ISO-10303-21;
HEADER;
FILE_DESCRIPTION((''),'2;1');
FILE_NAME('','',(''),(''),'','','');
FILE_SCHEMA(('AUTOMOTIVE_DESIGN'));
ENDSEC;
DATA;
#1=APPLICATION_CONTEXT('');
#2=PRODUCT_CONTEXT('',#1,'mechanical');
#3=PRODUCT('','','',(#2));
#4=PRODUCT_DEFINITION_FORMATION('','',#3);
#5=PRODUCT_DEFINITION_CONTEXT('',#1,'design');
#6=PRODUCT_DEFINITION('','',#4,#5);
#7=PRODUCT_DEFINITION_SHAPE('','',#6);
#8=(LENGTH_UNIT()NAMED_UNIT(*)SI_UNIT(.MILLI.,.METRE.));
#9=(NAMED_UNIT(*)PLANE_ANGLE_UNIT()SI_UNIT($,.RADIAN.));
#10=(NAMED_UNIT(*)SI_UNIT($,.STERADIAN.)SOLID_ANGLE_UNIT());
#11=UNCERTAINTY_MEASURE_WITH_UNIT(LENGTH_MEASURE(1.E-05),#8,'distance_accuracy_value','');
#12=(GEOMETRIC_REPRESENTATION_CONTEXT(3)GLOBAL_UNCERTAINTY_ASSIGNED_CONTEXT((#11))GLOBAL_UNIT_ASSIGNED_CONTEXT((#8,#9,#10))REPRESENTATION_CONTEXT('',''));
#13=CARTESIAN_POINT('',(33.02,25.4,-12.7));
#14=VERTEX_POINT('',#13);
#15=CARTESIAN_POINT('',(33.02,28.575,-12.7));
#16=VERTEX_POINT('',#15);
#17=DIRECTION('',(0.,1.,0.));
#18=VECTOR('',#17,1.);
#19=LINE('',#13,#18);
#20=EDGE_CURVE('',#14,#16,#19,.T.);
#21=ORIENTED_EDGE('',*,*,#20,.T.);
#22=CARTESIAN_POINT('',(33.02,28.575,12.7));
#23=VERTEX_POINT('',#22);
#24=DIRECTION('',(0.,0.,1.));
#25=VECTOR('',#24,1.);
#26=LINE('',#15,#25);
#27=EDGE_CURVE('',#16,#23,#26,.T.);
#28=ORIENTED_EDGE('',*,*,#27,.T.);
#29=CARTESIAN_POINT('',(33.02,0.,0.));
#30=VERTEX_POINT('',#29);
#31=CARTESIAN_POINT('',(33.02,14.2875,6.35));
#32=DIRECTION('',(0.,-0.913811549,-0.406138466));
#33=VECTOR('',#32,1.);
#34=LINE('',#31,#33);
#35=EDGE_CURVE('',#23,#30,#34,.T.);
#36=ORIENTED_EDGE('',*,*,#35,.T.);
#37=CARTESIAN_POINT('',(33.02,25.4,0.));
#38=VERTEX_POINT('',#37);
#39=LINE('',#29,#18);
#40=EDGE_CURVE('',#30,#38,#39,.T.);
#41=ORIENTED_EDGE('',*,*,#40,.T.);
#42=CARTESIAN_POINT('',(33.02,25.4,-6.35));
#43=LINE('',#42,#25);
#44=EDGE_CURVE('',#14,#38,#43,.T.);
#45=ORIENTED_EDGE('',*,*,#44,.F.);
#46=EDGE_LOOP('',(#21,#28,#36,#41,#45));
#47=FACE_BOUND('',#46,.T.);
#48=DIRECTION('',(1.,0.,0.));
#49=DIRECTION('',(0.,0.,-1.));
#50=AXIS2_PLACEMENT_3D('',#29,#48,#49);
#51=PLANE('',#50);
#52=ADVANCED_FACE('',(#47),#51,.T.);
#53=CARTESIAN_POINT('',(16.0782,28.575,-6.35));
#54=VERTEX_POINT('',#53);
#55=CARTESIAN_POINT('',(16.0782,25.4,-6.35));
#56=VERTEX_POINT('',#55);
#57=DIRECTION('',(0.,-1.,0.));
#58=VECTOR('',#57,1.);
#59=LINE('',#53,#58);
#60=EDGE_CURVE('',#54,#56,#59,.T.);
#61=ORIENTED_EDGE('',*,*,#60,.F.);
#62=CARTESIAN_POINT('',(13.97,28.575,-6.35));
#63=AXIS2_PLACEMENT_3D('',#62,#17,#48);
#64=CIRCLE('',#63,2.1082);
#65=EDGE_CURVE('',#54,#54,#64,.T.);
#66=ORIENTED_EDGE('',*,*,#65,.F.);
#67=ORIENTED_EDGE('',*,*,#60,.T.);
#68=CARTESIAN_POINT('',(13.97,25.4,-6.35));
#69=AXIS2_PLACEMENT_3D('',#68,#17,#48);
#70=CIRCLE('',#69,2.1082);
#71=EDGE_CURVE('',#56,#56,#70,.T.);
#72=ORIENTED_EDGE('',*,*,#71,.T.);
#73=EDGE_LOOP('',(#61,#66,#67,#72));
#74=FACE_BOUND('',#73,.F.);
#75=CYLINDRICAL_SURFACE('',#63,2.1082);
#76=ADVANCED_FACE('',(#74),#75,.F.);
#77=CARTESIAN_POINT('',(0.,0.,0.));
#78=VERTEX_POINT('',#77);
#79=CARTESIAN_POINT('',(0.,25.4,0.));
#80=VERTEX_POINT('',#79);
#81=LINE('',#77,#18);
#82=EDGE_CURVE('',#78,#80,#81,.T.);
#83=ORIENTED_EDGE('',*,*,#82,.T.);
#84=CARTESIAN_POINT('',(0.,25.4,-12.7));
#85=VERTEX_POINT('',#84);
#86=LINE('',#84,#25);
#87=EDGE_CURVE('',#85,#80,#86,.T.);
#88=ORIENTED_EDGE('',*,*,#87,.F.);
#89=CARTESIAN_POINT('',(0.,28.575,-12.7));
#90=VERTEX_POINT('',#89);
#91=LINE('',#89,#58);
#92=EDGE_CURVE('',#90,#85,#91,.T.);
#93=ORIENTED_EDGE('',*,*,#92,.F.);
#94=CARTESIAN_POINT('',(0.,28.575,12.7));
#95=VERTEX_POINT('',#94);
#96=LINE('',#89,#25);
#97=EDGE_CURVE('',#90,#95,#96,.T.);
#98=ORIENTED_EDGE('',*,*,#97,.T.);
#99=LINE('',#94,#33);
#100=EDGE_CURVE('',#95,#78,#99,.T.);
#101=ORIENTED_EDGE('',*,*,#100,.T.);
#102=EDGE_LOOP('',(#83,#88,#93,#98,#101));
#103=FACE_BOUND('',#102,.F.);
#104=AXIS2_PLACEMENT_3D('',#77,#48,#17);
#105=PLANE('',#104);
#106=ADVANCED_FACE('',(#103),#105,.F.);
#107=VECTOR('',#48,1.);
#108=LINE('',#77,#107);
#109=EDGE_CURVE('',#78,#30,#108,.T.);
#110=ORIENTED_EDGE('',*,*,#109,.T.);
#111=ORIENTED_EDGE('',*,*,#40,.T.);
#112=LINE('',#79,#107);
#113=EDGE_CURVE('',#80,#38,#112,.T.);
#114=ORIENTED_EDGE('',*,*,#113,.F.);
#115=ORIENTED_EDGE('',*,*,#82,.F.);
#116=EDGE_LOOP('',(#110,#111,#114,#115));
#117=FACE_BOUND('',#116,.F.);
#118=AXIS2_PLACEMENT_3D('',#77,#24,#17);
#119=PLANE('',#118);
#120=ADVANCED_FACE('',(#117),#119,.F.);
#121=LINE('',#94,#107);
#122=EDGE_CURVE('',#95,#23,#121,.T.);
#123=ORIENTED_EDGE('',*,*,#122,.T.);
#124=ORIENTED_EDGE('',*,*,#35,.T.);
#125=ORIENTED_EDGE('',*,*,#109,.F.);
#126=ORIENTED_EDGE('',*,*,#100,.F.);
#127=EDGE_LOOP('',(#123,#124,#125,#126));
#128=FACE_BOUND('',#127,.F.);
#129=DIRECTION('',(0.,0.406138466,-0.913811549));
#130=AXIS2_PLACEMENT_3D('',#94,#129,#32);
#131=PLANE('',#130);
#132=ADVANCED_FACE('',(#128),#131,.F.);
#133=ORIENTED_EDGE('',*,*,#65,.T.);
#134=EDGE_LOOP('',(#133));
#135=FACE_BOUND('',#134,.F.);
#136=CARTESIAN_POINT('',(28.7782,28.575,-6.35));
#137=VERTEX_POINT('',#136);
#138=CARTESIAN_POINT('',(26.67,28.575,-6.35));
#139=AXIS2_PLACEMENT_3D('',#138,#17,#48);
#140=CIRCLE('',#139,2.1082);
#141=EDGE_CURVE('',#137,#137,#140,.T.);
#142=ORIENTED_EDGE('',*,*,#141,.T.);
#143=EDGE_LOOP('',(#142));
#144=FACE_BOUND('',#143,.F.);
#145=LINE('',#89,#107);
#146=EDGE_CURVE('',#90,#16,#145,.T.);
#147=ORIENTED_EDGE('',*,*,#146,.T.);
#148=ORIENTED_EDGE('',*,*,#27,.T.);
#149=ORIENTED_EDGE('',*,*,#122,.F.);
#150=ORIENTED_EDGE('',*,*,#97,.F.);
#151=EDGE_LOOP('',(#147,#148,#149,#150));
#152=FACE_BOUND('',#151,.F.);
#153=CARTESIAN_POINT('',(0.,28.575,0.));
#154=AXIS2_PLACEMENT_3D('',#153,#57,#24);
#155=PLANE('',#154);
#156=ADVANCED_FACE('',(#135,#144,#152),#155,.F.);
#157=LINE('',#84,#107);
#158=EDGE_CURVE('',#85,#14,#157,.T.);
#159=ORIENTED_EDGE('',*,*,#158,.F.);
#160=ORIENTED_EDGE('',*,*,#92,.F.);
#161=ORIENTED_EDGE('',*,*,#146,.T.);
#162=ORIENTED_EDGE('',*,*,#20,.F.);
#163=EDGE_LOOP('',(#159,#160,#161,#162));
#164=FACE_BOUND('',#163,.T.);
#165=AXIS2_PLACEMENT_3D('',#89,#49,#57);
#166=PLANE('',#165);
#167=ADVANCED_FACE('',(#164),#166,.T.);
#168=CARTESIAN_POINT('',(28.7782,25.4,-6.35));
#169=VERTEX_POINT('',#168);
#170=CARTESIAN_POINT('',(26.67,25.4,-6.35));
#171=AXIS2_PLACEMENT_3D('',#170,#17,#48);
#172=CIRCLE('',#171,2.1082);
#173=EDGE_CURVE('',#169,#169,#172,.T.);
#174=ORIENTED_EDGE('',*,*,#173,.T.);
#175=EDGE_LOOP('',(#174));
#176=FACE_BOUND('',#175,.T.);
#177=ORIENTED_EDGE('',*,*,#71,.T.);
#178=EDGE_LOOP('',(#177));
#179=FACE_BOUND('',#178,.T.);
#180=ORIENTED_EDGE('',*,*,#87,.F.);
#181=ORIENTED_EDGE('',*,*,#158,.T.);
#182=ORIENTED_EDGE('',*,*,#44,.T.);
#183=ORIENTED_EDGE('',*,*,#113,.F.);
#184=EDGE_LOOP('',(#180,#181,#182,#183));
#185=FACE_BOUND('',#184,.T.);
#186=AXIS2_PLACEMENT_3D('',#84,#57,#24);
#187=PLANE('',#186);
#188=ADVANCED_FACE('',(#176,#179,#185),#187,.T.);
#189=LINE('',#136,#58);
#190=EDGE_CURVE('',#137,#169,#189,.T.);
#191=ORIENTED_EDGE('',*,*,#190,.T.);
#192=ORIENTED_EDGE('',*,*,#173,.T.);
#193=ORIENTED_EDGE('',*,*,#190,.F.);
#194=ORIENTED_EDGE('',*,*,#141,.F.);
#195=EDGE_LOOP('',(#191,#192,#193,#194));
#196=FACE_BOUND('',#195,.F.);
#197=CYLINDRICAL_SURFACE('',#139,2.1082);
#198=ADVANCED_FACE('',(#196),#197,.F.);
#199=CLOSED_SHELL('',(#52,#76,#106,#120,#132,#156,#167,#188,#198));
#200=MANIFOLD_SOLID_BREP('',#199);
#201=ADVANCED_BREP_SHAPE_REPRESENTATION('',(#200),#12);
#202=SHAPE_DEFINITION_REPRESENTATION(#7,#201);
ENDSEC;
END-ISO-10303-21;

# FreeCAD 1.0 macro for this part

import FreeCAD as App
import Part
import Sketcher

V = App.Vector
Q = App.Units.Quantity

doc = App.newDocument("Part")
body = doc.addObject("PartDesign::Body", "Body")

sketch1 = doc.addObject("Sketcher::SketchObject", "Sketch")
body.addObject(sketch1)
sketch1.AttachmentSupport = (doc.YZ_Plane, [""])
sketch1.MapMode = "FlatFace"
sketch1.addGeometry(Part.LineSegment(V(28.575, 12.7, 0), V(0, 0, 0)), False)
sketch1.addGeometry(Part.LineSegment(V(0, 0, 0), V(25.4, 0, 0)), False)
sketch1.addGeometry(Part.LineSegment(V(25.4, 0, 0), V(25.4, -12.7, 0)), False)
sketch1.addGeometry(Part.LineSegment(V(25.4, -12.7, 0), V(28.575, -12.7, 0)), False)
sketch1.addGeometry(Part.LineSegment(V(28.575, -12.7, 0), V(28.575, 12.7, 0)), False)
sketch1.addConstraint(Sketcher.Constraint("Coincident", 0, 2, 1, 1))
sketch1.addConstraint(Sketcher.Constraint("Coincident", 1, 2, 2, 1))
sketch1.addConstraint(Sketcher.Constraint("Coincident", 2, 2, 3, 1))
sketch1.addConstraint(Sketcher.Constraint("Coincident", 3, 2, 4, 1))
sketch1.addConstraint(Sketcher.Constraint("Coincident", 4, 2, 0, 1))
sketch1.addConstraint(Sketcher.Constraint("Horizontal", 1))
sketch1.addConstraint(Sketcher.Constraint("Vertical", 2))
sketch1.addConstraint(Sketcher.Constraint("Horizontal", 3))
sketch1.addConstraint(Sketcher.Constraint("Vertical", 4))
sketch1.addConstraint(Sketcher.Constraint("Coincident", 0, 2, -1, 1))
sketch1.addConstraint(Sketcher.Constraint("Equal", 1, 4))
sketch1.addConstraint(Sketcher.Constraint("DistanceX", 1, 1, 1, 2, Q("1 in")))
sketch1.addConstraint(Sketcher.Constraint("DistanceY", 2, 2, 2, 1, Q("0.5 in")))
sketch1.addConstraint(Sketcher.Constraint("DistanceX", 3, 1, 3, 2, Q("0.125 in")))
pad1 = doc.addObject("PartDesign::Pad", "Pad")
body.addObject(pad1)
pad1.Profile = sketch1
pad1.Length = Q("2.1 in")

sketch2 = doc.addObject("Sketcher::SketchObject", "Sketch001")
body.addObject(sketch2)
sketch2.AttachmentSupport = (doc.XZ_Plane, [""])
sketch2.MapMode = "FlatFace"
sketch2.AttachmentOffset = App.Placement(V(0, 0, -1.125 * 25.4), App.Rotation())
sketch2.addGeometry(Part.Circle(V(26.67, -6.35, 0), V(0, 0, 1), 2.1082), False)
sketch2.addConstraint(Sketcher.Constraint("Diameter", 0, Q("0.166 in")))
sketch2.addConstraint(Sketcher.Constraint("DistanceX", -1, 1, 0, 3, Q("1.05 in")))
sketch2.addConstraint(Sketcher.Constraint("DistanceY", 0, 3, -1, 1, Q("0.25 in")))
pocket1 = doc.addObject("PartDesign::Pocket", "Pocket")
body.addObject(pocket1)
pocket1.Profile = sketch2
pocket1.Length = Q("1.725 in")
pocket1.Reversed = True

sketch3 = doc.addObject("Sketcher::SketchObject", "Sketch002")
body.addObject(sketch3)
sketch3.AttachmentSupport = (doc.YZ_Plane, [""])
sketch3.MapMode = "FlatFace"
sketch3.AttachmentOffset = App.Placement(V(0, 0, 2.1 * 25.4), App.Rotation())
sketch3.addGeometry(Part.LineSegment(V(0, -12.7, 0), V(28.575, -12.7, 0)), False)
sketch3.addGeometry(Part.LineSegment(V(28.575, -12.7, 0), V(28.575, 16.4619, 0)), False)
sketch3.addGeometry(Part.LineSegment(V(28.575, 16.4619, 0), V(0, 16.4619, 0)), False)
sketch3.addGeometry(Part.LineSegment(V(0, 16.4619, 0), V(0, -12.7, 0)), False)
sketch3.addConstraint(Sketcher.Constraint("Coincident", 0, 2, 1, 1))
sketch3.addConstraint(Sketcher.Constraint("Coincident", 1, 2, 2, 1))
sketch3.addConstraint(Sketcher.Constraint("Coincident", 2, 2, 3, 1))
sketch3.addConstraint(Sketcher.Constraint("Coincident", 3, 2, 0, 1))
sketch3.addConstraint(Sketcher.Constraint("Horizontal", 0))
sketch3.addConstraint(Sketcher.Constraint("Vertical", 1))
sketch3.addConstraint(Sketcher.Constraint("Horizontal", 2))
sketch3.addConstraint(Sketcher.Constraint("Vertical", 3))
sketch3.addConstraint(Sketcher.Constraint("PointOnObject", 2, 2, -2))
sketch3.addConstraint(Sketcher.Constraint("DistanceY", 0, 2, -1, 1, Q("0.5 in")))
sketch3.addConstraint(Sketcher.Constraint("DistanceX", 0, 1, 0, 2, Q("1.125 in")))
sketch3.addConstraint(Sketcher.Constraint("DistanceY", 1, 1, 1, 2, Q("1.1481 in")))
pocket2 = doc.addObject("PartDesign::Pocket", "Pocket001")
body.addObject(pocket2)
pocket2.Profile = sketch3
pocket2.Length = Q("0.8 in")

sketch4 = doc.addObject("Sketcher::SketchObject", "Sketch003")
body.addObject(sketch4)
sketch4.AttachmentSupport = (doc.XZ_Plane, [""])
sketch4.MapMode = "FlatFace"
sketch4.AttachmentOffset = App.Placement(V(0, 0, -1.125 * 25.4), App.Rotation())
sketch4.addGeometry(Part.Circle(V(13.97, -6.35, 0), V(0, 0, 1), 2.1082), False)
sketch4.addConstraint(Sketcher.Constraint("Diameter", 0, Q("0.166 in")))
sketch4.addConstraint(Sketcher.Constraint("DistanceX", -1, 1, 0, 3, Q("0.55 in")))
sketch4.addConstraint(Sketcher.Constraint("DistanceY", 0, 3, -1, 1, Q("0.25 in")))
pocket3 = doc.addObject("PartDesign::Pocket", "Pocket002")
body.addObject(pocket3)
pocket3.Profile = sketch4
pocket3.Length = Q("0.8 in")
pocket3.Reversed = True

doc.recompute()
